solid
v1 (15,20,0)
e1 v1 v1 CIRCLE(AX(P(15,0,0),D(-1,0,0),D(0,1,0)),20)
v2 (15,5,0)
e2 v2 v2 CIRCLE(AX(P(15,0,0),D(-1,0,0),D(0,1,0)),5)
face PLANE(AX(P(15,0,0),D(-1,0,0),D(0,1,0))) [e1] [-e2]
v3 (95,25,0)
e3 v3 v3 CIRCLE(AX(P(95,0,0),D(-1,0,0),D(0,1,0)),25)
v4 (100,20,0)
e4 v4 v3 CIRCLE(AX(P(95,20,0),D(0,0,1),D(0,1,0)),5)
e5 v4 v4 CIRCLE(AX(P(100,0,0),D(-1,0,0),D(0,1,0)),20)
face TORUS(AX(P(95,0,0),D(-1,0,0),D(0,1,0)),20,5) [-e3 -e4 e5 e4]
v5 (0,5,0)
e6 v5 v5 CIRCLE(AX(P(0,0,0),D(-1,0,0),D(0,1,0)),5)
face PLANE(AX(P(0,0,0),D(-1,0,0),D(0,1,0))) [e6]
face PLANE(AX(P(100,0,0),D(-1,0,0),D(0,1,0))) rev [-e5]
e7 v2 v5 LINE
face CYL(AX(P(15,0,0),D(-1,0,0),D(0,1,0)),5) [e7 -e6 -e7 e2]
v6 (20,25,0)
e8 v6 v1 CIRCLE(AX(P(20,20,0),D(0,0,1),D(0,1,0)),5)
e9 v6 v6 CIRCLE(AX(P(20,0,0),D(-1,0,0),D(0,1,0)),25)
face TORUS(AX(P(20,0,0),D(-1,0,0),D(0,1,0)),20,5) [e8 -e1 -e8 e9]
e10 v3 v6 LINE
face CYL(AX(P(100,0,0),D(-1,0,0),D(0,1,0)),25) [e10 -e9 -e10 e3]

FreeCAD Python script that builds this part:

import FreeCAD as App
import Part
import Sketcher


def edges_at(feature, points):
    """Names of the edges that pass closest to the given points."""
    edges = feature.Shape.Edges
    near = lambda p: min(range(len(edges)), key=lambda i: edges[i].distToShape(Part.Vertex(*p))[0])
    return sorted({f"Edge{near(p) + 1}" for p in points})


def add_polygon(sketch, points):
    """Adds a closed chain of lines whose ends are joined by coincident constraints."""
    first, n = sketch.GeometryCount, len(points)
    for a, b in zip(points, points[1:] + points[:1]):
        sketch.addGeometry(Part.LineSegment(App.Vector(*a, 0), App.Vector(*b, 0)), False)
    for i in range(n):
        sketch.addConstraint(Sketcher.Constraint("Coincident", first + i, 2, first + (i + 1) % n, 1))

doc = App.newDocument("Part")
body = doc.addObject("PartDesign::Body", "Body")

# Sketch on XY plane
sketch1 = body.newObject("Sketcher::SketchObject", "Sketch")
sketch1.AttachmentSupport = (doc.getObject("XY_Plane"), [""])
sketch1.MapMode = "FlatFace"
add_polygon(sketch1, [(0, 5), (0, 0), (100, 0), (100, 25), (15, 25), (15, 5)])  # lines 0-5
sketch1.addConstraint(Sketcher.Constraint("Vertical", 0))
sketch1.addConstraint(Sketcher.Constraint("Horizontal", 1))
sketch1.addConstraint(Sketcher.Constraint("Vertical", 2))
sketch1.addConstraint(Sketcher.Constraint("Horizontal", 3))
sketch1.addConstraint(Sketcher.Constraint("Vertical", 4))
sketch1.addConstraint(Sketcher.Constraint("Horizontal", 5))
sketch1.addConstraint(Sketcher.Constraint("Coincident", 0, 2, -1, 1))
sketch1.addConstraint(Sketcher.Constraint("DistanceX", 1, 1, 1, 2, 100.0))
sketch1.addConstraint(Sketcher.Constraint("DistanceX", 3, 2, 3, 1, 85.0))
sketch1.addConstraint(Sketcher.Constraint("DistanceY", 0, 2, 0, 1, 5.0))
sketch1.addConstraint(Sketcher.Constraint("DistanceY", 2, 1, 2, 2, 25.0))
revolution = body.newObject("PartDesign::Revolution", "Revolution")
revolution.Profile = sketch1
revolution.ReferenceAxis = (sketch1, ["H_Axis"])
revolution.Angle = 360
doc.recompute()

fillet = body.newObject("PartDesign::Fillet", "Fillet")
fillet.Base = (revolution, edges_at(revolution, [(15, -25, 0), (100, -25, 0)]))
fillet.Radius = 5

doc.recompute()
